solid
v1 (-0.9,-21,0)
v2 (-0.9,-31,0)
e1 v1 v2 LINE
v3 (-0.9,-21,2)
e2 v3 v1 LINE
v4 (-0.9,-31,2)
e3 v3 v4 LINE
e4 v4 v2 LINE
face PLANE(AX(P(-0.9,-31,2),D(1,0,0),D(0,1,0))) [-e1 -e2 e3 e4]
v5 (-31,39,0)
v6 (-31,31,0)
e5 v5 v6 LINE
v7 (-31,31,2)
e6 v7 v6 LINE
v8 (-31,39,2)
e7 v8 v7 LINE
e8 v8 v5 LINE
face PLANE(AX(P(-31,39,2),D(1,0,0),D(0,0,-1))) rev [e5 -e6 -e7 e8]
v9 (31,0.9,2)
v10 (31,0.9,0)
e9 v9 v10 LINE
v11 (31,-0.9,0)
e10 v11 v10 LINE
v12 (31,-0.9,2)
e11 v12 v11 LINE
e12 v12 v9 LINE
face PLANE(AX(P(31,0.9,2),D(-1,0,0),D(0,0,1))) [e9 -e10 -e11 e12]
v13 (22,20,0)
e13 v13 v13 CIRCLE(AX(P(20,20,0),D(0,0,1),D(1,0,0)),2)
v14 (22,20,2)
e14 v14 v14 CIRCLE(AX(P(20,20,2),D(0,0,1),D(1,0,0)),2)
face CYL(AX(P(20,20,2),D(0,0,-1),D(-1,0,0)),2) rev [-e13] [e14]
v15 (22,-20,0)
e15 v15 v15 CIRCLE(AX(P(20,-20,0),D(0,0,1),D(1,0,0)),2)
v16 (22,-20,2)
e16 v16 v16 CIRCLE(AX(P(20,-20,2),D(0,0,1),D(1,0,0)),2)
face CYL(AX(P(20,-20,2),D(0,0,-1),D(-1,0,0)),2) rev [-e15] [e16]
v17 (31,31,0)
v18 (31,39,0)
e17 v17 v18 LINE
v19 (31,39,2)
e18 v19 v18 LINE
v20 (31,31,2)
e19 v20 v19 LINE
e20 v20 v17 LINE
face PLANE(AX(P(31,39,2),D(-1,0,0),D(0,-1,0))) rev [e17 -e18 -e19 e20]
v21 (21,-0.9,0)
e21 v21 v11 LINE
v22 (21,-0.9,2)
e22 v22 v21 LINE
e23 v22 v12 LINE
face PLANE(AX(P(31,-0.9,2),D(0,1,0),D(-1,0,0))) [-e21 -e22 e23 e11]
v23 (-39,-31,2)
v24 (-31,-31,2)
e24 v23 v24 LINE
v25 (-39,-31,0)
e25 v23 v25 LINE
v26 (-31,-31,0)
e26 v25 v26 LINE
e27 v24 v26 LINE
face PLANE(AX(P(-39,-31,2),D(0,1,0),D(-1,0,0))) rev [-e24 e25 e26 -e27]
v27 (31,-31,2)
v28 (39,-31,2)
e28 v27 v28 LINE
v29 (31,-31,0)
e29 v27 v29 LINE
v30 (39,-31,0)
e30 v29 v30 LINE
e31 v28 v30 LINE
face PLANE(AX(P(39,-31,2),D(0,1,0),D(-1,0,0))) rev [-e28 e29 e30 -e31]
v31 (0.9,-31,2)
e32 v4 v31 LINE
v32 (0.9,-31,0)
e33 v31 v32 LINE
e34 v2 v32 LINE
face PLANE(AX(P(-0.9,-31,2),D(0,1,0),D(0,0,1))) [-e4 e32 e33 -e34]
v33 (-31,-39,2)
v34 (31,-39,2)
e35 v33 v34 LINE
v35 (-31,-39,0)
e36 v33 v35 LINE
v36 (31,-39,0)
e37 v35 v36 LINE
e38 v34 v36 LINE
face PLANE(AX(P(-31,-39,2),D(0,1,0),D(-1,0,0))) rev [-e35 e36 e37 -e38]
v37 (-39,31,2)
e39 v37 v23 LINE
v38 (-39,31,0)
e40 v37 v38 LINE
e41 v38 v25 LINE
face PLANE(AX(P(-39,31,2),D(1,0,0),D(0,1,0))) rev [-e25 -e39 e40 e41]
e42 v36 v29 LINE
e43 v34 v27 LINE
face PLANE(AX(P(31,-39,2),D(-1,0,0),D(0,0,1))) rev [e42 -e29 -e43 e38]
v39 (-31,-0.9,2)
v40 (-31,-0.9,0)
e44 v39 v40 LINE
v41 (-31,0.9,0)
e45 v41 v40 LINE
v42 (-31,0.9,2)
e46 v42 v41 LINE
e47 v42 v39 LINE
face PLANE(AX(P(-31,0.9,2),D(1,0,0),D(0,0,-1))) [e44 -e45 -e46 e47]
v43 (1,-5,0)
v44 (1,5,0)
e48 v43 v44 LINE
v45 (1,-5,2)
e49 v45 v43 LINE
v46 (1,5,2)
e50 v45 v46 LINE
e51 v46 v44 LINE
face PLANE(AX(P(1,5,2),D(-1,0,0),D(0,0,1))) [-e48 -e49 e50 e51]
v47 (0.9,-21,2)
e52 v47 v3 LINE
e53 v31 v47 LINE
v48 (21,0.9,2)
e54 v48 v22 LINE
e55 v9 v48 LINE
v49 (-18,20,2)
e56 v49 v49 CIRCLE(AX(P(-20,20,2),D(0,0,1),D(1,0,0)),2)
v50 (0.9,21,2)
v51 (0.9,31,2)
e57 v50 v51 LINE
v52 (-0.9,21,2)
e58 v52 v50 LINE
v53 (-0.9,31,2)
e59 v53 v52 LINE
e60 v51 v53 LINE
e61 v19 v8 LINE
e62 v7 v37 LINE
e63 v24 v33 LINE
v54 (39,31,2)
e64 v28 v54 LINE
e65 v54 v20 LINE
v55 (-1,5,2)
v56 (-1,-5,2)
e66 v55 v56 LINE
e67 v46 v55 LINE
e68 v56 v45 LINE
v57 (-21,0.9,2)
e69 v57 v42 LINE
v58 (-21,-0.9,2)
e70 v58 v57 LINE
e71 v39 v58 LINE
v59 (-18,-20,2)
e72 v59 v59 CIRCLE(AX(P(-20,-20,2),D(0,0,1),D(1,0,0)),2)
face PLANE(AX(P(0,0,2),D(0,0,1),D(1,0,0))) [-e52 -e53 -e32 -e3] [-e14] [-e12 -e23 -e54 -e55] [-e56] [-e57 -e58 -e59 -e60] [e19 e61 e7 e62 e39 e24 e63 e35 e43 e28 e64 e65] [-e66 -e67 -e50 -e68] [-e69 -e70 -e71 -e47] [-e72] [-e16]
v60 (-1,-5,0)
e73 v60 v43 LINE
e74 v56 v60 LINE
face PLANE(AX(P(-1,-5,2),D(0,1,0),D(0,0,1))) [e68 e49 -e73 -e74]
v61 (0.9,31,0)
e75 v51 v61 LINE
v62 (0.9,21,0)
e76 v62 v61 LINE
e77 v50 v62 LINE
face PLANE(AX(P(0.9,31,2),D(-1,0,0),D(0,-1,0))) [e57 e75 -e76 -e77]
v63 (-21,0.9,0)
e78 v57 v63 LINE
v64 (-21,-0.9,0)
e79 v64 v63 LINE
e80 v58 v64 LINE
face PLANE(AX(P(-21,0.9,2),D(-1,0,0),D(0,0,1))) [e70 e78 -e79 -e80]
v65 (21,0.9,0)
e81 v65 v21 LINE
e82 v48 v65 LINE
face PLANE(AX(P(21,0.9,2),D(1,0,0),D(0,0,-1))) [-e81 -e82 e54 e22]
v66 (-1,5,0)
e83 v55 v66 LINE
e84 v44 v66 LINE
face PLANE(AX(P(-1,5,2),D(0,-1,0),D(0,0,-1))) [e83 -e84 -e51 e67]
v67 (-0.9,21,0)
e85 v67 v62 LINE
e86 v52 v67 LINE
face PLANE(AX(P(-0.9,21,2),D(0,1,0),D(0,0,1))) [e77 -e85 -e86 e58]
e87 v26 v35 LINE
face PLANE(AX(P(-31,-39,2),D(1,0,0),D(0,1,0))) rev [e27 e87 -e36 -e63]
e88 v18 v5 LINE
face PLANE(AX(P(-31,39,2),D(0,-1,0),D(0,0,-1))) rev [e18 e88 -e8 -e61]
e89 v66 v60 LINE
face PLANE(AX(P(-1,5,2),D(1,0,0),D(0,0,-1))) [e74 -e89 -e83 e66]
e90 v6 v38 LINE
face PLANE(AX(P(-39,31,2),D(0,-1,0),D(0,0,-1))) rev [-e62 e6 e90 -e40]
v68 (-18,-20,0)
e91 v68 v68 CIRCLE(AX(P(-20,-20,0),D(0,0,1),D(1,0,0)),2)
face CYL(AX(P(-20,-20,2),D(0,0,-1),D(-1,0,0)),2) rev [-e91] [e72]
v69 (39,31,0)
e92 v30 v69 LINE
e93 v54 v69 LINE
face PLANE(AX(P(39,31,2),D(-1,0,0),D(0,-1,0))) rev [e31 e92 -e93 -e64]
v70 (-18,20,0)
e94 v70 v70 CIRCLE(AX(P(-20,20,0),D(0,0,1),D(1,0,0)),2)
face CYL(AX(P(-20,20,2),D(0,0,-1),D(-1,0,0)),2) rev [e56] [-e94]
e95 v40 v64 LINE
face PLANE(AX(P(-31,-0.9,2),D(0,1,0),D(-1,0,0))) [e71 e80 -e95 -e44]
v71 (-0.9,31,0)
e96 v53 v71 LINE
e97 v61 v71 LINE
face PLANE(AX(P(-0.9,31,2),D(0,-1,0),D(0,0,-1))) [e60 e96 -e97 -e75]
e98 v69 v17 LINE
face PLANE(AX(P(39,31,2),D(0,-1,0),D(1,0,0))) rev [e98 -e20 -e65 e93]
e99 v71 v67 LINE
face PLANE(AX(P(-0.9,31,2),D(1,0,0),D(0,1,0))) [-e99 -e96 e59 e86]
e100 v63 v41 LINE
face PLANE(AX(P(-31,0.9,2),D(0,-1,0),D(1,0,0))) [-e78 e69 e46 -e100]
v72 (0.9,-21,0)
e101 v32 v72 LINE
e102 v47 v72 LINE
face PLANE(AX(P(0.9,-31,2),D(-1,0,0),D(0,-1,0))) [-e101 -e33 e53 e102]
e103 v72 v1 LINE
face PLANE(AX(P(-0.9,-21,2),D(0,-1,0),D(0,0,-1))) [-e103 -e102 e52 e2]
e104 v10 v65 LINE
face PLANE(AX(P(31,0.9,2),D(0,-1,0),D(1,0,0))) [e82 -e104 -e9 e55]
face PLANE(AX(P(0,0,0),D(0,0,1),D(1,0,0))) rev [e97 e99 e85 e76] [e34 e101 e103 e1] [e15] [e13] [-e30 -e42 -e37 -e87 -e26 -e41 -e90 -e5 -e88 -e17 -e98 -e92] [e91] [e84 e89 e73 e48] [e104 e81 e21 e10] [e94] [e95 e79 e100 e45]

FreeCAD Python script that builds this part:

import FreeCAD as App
import Part
import Sketcher


def add_polygon(sketch, points):
    """Adds a closed chain of lines whose ends are joined by coincident constraints."""
    first, n = sketch.GeometryCount, len(points)
    for a, b in zip(points, points[1:] + points[:1]):
        sketch.addGeometry(Part.LineSegment(App.Vector(*a, 0), App.Vector(*b, 0)), False)
    for i in range(n):
        sketch.addConstraint(Sketcher.Constraint("Coincident", first + i, 2, first + (i + 1) % n, 1))

doc = App.newDocument("Part")
params = doc.addObject("Spreadsheet::Sheet", "Params")
for row, (alias, value) in enumerate([
    ("sketch1_diameter", "4 mm"),
    ("sketch1_width", "62 mm"),
    ("sketch1_width2", "8 mm"),
    ("sketch1_width3", "10 mm"),
    ("sketch1_width4", "2 mm"),
    ("pad1_length", "2 mm"),
], start=1):
    params.set(f"A{row}", alias)
    params.set(f"B{row}", "=" + value)
    params.setAlias(f"B{row}", alias)

body = doc.addObject("PartDesign::Body", "Body")

sketch1 = body.newObject("Sketcher::SketchObject", "Sketch")
sketch1.AttachmentSupport = (doc.getObject("XY_Plane"), [""])
sketch1.MapMode = "FlatFace"
add_polygon(sketch1, [(31, 39), (-31, 39), (-31, 31), (-39, 31), (-39, -31), (-31, -31), (-31, -39), (31, -39), (31, -31), (39, -31), (39, 31), (31, 31)])
sketch1.addGeometry(Part.Circle(App.Vector(20, -20, 0), App.Vector(0, 0, 1), 2), False)
add_polygon(sketch1, [(-0.9, -31), (-0.9, -21), (0.9, -21), (0.9, -31)])
sketch1.addGeometry(Part.Circle(App.Vector(-20, -20, 0), App.Vector(0, 0, 1), 2), False)
add_polygon(sketch1, [(21, -0.9), (21, 0.9), (31, 0.9), (31, -0.9)])
sketch1.addGeometry(Part.Circle(App.Vector(20, 20, 0), App.Vector(0, 0, 1), 2), False)
add_polygon(sketch1, [(-1, -5), (-1, 5), (1, 5), (1, -5)])
add_polygon(sketch1, [(-31, -0.9), (-31, 0.9), (-21, 0.9), (-21, -0.9)])
add_polygon(sketch1, [(-0.9, 21), (-0.9, 31), (0.9, 31), (0.9, 21)])
sketch1.addGeometry(Part.Circle(App.Vector(-20, 20, 0), App.Vector(0, 0, 1), 2), False)
sketch1.addConstraint(Sketcher.Constraint("Horizontal", 0))
sketch1.addConstraint(Sketcher.Constraint("Vertical", 1))
sketch1.addConstraint(Sketcher.Constraint("Horizontal", 2))
sketch1.addConstraint(Sketcher.Constraint("Vertical", 3))
sketch1.addConstraint(Sketcher.Constraint("Horizontal", 4))
sketch1.addConstraint(Sketcher.Constraint("Vertical", 5))
sketch1.addConstraint(Sketcher.Constraint("Horizontal", 6))
sketch1.addConstraint(Sketcher.Constraint("Vertical", 7))
sketch1.addConstraint(Sketcher.Constraint("Horizontal", 8))
sketch1.addConstraint(Sketcher.Constraint("Vertical", 9))
sketch1.addConstraint(Sketcher.Constraint("Horizontal", 10))
sketch1.addConstraint(Sketcher.Constraint("Vertical", 11))
sketch1.addConstraint(Sketcher.Constraint("Vertical", 13))
sketch1.addConstraint(Sketcher.Constraint("Horizontal", 14))
sketch1.addConstraint(Sketcher.Constraint("Vertical", 15))
sketch1.addConstraint(Sketcher.Constraint("Horizontal", 16))
sketch1.addConstraint(Sketcher.Constraint("Vertical", 18))
sketch1.addConstraint(Sketcher.Constraint("Horizontal", 19))
sketch1.addConstraint(Sketcher.Constraint("Vertical", 20))
sketch1.addConstraint(Sketcher.Constraint("Horizontal", 21))
sketch1.addConstraint(Sketcher.Constraint("Vertical", 23))
sketch1.addConstraint(Sketcher.Constraint("Horizontal", 24))
sketch1.addConstraint(Sketcher.Constraint("Vertical", 25))
sketch1.addConstraint(Sketcher.Constraint("Horizontal", 26))
sketch1.addConstraint(Sketcher.Constraint("Vertical", 27))
sketch1.addConstraint(Sketcher.Constraint("Horizontal", 28))
sketch1.addConstraint(Sketcher.Constraint("Vertical", 29))
sketch1.addConstraint(Sketcher.Constraint("Horizontal", 30))
sketch1.addConstraint(Sketcher.Constraint("Vertical", 31))
sketch1.addConstraint(Sketcher.Constraint("Horizontal", 32))
sketch1.addConstraint(Sketcher.Constraint("Vertical", 33))
sketch1.addConstraint(Sketcher.Constraint("Horizontal", 34))
sketch1.addConstraint(Sketcher.Constraint("Equal", 12, 17))
sketch1.addConstraint(Sketcher.Constraint("Equal", 17, 22))
sketch1.addConstraint(Sketcher.Constraint("Equal", 22, 35))
sketch1.addConstraint(Sketcher.Constraint("Symmetric", 17, 3, 22, 3, -1, 1))
sketch1.addConstraint(Sketcher.Constraint("Symmetric", 12, 3, 35, 3, -1, 1))
sketch1.addConstraint(Sketcher.Constraint("Symmetric", 0, 2, 6, 2, -1, 1))
sketch1.addConstraint(Sketcher.Constraint("Symmetric", 2, 2, 8, 2, -1, 1))
sketch1.addConstraint(Sketcher.Constraint("Symmetric", 4, 2, 10, 2, -1, 1))
sketch1.addConstraint(Sketcher.Constraint("Symmetric", 23, 2, 25, 2, -1, 1))
sketch1.addConstraint(Sketcher.Constraint("Symmetric", 20, 2, 27, 2, -1, 1))
sketch1.addConstraint(Sketcher.Constraint("Symmetric", 18, 2, 29, 2, -1, 1))
sketch1.addConstraint(Sketcher.Constraint("Symmetric", 15, 2, 31, 2, -1, 1))
sketch1.addConstraint(Sketcher.Constraint("Symmetric", 13, 2, 33, 2, -1, 1))
sketch1.addConstraint(Sketcher.Constraint("Symmetric", 12, 3, 17, 3, -2))
sketch1.addConstraint(Sketcher.Constraint("Symmetric", 4, 2, 7, 2, -2))
sketch1.addConstraint(Sketcher.Constraint("Horizontal", 8, 2, 15, 2))
sketch1.addConstraint(Sketcher.Constraint("Horizontal", 19, 2, 27, 2))
sketch1.addConstraint(Sketcher.Constraint("Vertical", 11, 2, 19, 2))
sketch1.addConstraint(Sketcher.Constraint("Vertical", 16, 2, 31, 2))
sketch1.addConstraint(Sketcher.Constraint("Equal", 10, 1))
sketch1.addConstraint(Sketcher.Constraint("Equal", 6, 3))
sketch1.addConstraint(Sketcher.Constraint("Equal", 30, 13))
sketch1.addConstraint(Sketcher.Constraint("Equal", 34, 18))
sketch1.addConstraint(Sketcher.Constraint("Equal", 15, 23))
sketch1.addConstraint(Sketcher.Constraint("Diameter", 12, 4.0))
sketch1.addConstraint(Sketcher.Constraint("DistanceX", 0, 2, 0, 1, 62.0))
sketch1.addConstraint(Sketcher.Constraint("DistanceX", 2, 2, 2, 1, 8.0))
sketch1.addConstraint(Sketcher.Constraint("DistanceX", 19, 1, 19, 2, 10.0))
sketch1.addConstraint(Sketcher.Constraint("DistanceX", 24, 1, 24, 2, 2.0))
sketch1.addConstraint(Sketcher.Constraint("DistanceX", 14, 1, 14, 2, 1.8))
sketch1.addConstraint(Sketcher.Constraint("DistanceX", -1, 1, 12, 3, 20.0))
sketch1.addConstraint(Sketcher.Constraint("DistanceY", 12, 3, -1, 1, 20.0))
sketch1.setExpression("Constraints[88]", "Params.sketch1_diameter")
sketch1.setExpression("Constraints[89]", "Params.sketch1_width")
sketch1.setExpression("Constraints[90]", "Params.sketch1_width2")
sketch1.setExpression("Constraints[91]", "Params.sketch1_width3")
sketch1.setExpression("Constraints[92]", "Params.sketch1_width4")
pad1 = body.newObject("PartDesign::Pad", "Pad")
pad1.Profile = sketch1
pad1.setExpression("Length", "Params.pad1_length")

doc.recompute()
